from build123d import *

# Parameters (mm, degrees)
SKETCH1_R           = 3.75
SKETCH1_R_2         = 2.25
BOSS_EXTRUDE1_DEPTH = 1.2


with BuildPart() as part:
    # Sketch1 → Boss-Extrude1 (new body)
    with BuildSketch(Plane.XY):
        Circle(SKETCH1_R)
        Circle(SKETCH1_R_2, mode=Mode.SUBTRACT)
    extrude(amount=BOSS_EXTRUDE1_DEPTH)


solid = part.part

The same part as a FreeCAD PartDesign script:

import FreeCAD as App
import Part
import Sketcher

V = App.Vector
Q = App.Units.Quantity

doc = App.newDocument("Part")
body = doc.addObject("PartDesign::Body", "Body")

sketch1 = body.newObject("Sketcher::SketchObject", "Sketch")
sketch1.AttachmentSupport = (doc.getObject("XY_Plane"), [""])
sketch1.MapMode = "FlatFace"
sketch1.addGeometry(Part.Circle(V(0, 0, 0), V(0, 0, 1), 3.8), False)
sketch1.addGeometry(Part.Circle(V(0, 0, 0), V(0, 0, 1), 2.2), False)
sketch1.addConstraint(Sketcher.Constraint("Coincident", 0, 3, -1, 1))
sketch1.addConstraint(Sketcher.Constraint("Coincident", 1, 3, -1, 1))
sketch1.addConstraint(Sketcher.Constraint("Diameter", 0, Q("7.5 mm")))
sketch1.addConstraint(Sketcher.Constraint("Diameter", 1, Q("4.5 mm")))
pad1 = body.newObject("PartDesign::Pad", "Pad")
pad1.Profile = sketch1
pad1.Length = 1.2

doc.recompute()
